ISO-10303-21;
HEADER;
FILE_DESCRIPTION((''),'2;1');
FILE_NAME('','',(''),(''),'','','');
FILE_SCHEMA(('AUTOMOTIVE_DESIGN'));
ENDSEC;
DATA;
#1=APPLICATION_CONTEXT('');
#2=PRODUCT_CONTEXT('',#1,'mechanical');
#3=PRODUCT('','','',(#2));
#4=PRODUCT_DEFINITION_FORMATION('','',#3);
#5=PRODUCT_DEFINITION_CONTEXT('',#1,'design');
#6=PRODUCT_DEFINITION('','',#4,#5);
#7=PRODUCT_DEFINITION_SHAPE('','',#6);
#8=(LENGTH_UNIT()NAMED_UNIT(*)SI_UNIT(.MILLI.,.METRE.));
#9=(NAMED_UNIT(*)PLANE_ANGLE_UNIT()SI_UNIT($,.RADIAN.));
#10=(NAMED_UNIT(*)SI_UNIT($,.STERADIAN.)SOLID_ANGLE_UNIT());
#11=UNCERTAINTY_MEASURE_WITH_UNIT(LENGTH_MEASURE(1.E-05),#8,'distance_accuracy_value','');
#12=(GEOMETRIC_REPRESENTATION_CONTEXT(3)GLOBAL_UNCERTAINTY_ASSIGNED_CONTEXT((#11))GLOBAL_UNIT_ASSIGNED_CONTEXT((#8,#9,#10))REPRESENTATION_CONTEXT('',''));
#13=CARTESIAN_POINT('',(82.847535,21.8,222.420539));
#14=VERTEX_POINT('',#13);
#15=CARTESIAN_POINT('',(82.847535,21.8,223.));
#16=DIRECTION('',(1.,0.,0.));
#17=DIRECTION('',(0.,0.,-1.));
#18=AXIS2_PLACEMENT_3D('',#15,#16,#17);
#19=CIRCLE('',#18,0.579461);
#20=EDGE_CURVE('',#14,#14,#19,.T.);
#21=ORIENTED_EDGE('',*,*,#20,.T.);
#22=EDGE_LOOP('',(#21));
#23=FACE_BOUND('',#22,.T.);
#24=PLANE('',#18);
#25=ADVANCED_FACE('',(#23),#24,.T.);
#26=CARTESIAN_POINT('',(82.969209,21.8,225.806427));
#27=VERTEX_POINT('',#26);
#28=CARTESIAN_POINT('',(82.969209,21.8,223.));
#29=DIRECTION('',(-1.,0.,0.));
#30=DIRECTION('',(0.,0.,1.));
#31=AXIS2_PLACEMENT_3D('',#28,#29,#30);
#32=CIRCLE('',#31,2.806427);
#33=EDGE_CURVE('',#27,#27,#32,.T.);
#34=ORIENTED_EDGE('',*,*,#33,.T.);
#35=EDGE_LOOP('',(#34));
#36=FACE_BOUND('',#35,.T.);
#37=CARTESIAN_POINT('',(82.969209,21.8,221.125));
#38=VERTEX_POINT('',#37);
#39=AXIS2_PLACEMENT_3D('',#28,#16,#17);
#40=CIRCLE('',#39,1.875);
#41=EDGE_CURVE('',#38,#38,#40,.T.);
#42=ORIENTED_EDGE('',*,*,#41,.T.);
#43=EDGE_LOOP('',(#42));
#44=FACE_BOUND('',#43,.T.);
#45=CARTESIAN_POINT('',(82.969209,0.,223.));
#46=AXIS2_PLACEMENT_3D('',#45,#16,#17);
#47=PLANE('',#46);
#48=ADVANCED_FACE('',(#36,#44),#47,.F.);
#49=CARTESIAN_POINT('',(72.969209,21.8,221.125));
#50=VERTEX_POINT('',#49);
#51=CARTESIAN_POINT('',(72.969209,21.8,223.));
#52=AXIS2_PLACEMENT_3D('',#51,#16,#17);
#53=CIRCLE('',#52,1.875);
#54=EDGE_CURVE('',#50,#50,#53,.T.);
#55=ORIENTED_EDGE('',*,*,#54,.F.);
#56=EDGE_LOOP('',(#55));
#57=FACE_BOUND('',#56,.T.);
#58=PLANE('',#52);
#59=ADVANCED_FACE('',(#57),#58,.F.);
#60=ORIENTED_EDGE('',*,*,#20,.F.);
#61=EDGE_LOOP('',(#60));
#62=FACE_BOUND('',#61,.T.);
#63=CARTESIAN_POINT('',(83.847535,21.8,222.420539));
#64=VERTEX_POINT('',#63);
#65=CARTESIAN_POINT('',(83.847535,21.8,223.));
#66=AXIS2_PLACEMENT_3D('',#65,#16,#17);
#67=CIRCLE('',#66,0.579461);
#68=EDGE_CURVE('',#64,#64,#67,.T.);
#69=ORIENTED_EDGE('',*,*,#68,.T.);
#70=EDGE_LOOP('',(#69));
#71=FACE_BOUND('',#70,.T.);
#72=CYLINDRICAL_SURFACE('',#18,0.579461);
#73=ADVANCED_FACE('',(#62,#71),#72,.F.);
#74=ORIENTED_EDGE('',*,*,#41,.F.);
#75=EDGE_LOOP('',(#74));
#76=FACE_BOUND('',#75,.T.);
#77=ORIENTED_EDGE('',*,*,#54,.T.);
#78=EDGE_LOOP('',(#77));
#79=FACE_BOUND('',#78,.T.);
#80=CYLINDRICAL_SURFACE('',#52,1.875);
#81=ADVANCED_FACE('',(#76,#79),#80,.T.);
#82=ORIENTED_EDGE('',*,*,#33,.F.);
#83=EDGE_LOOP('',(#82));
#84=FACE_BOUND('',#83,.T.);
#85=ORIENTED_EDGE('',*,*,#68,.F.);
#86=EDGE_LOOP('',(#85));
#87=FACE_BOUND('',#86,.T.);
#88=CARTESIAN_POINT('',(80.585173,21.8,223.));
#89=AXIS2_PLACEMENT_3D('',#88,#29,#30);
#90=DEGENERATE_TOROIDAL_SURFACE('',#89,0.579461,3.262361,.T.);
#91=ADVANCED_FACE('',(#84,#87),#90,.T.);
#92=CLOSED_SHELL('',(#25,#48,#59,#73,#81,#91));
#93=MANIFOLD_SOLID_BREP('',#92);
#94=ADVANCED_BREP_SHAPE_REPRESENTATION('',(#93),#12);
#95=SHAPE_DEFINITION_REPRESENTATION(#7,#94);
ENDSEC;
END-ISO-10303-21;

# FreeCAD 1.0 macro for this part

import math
import FreeCAD as App
import Part
import Sketcher
Q = App.Units.Quantity

doc = App.newDocument("Part")
body = doc.addObject("PartDesign::Body", "Body")

# Sketch on YZ plane
sketch1 = body.newObject("Sketcher::SketchObject", "Sketch")
sketch1.AttachmentSupport = (doc.getObject("YZ_Plane"), [""])
sketch1.MapMode = "FlatFace"
sketch1.AttachmentOffset = App.Placement(App.Vector(0, 0, 82.969209), App.Rotation())
sketch1.addGeometry(Part.Circle(App.Vector(21.8, 223, 0), App.Vector(0, 0, 1), 1.9), False)
sketch1.addConstraint([
    Sketcher.Constraint("Diameter", 0, Q("3.75 mm")),
    Sketcher.Constraint("DistanceY", -1, 1, 0, 3, Q("223 mm")),
    Sketcher.Constraint("DistanceX", -1, 1, 0, 3, Q("21.8 mm")),
])
pad1 = body.newObject("PartDesign::Pad", "Pad")
pad1.Profile = sketch1
pad1.Length = 10
pad1.Reversed = True

# Sketch on XY plane
sketch2 = body.newObject("Sketcher::SketchObject", "Sketch001")
sketch2.AttachmentSupport = (doc.getObject("XY_Plane"), [""])
sketch2.MapMode = "FlatFace"
sketch2.AttachmentOffset = App.Placement(App.Vector(0, 0, 223), App.Rotation())
sketch2.addGeometry([
    Part.LineSegment(App.Vector(83.8, 21.8, 0), App.Vector(83, 21.8, 0)),
    Part.LineSegment(App.Vector(83, 21.8, 0), App.Vector(83, 19, 0)),
    Part.ArcOfCircle(Part.Circle(App.Vector(80.6, 21.2, 0), App.Vector(0, 0, 1), 3.3), math.radians(-43), math.radians(0)),
    Part.LineSegment(App.Vector(83.8, 21.2, 0), App.Vector(83.8, 21.8, 0)),
], False)
sketch2.addGeometry(Part.LineSegment(App.Vector(80.6, 21.8, 0), App.Vector(83.8, 21.8, 0)), True)  # axis
sketch2.addConstraint([
    Sketcher.Constraint("Coincident", 0, 2, 1, 1),
    Sketcher.Constraint("Coincident", 1, 2, 2, 1),
    Sketcher.Constraint("Tangent", 2, 2, 3, 1),
    Sketcher.Constraint("Coincident", 3, 2, 0, 1),
    Sketcher.Constraint("Horizontal", 0),
    Sketcher.Constraint("Vertical", 1),
    Sketcher.Constraint("Vertical", 3),
    Sketcher.Constraint("Horizontal", 4),
    Sketcher.Constraint("Coincident", 4, 2, 3, 2),
    Sketcher.Constraint("Vertical", 2, 3, 4, 1),
    Sketcher.Constraint("DistanceY", -1, 1, 0, 2, Q("21.8 mm")),
    Sketcher.Constraint("Radius", 2, Q("3.262361 mm")),
    Sketcher.Constraint("DistanceY", 3, 1, 3, 2, Q("0.579461 mm")),
    Sketcher.Constraint("DistanceX", 0, 2, 0, 1, Q("0.878326 mm")),
    Sketcher.Constraint("DistanceX", -1, 1, 0, 2, Q("82.969209 mm")),
])
revolution = body.newObject("PartDesign::Revolution", "Revolution")
revolution.Profile = sketch2
revolution.ReferenceAxis = (sketch2, ["Axis0"])
revolution.Angle = 360

# Sketch on YZ plane
sketch3 = body.newObject("Sketcher::SketchObject", "Sketch002")
sketch3.AttachmentSupport = (doc.getObject("YZ_Plane"), [""])
sketch3.MapMode = "FlatFace"
sketch3.AttachmentOffset = App.Placement(App.Vector(0, 0, 83.847535), App.Rotation())
sketch3.addGeometry(Part.Circle(App.Vector(21.8, 223, 0), App.Vector(0, 0, 1), 0.6), False)
sketch3.addConstraint([
    Sketcher.Constraint("DistanceY", -1, 1, 0, 3, Q("223 mm")),
    Sketcher.Constraint("DistanceX", -1, 1, 0, 3, Q("21.8 mm")),
    Sketcher.Constraint("Diameter", 0, Q("1.158922 mm")),
])
pocket1 = body.newObject("PartDesign::Pocket", "Pocket")
pocket1.Profile = sketch3
pocket1.Length = 1

doc.recompute()
